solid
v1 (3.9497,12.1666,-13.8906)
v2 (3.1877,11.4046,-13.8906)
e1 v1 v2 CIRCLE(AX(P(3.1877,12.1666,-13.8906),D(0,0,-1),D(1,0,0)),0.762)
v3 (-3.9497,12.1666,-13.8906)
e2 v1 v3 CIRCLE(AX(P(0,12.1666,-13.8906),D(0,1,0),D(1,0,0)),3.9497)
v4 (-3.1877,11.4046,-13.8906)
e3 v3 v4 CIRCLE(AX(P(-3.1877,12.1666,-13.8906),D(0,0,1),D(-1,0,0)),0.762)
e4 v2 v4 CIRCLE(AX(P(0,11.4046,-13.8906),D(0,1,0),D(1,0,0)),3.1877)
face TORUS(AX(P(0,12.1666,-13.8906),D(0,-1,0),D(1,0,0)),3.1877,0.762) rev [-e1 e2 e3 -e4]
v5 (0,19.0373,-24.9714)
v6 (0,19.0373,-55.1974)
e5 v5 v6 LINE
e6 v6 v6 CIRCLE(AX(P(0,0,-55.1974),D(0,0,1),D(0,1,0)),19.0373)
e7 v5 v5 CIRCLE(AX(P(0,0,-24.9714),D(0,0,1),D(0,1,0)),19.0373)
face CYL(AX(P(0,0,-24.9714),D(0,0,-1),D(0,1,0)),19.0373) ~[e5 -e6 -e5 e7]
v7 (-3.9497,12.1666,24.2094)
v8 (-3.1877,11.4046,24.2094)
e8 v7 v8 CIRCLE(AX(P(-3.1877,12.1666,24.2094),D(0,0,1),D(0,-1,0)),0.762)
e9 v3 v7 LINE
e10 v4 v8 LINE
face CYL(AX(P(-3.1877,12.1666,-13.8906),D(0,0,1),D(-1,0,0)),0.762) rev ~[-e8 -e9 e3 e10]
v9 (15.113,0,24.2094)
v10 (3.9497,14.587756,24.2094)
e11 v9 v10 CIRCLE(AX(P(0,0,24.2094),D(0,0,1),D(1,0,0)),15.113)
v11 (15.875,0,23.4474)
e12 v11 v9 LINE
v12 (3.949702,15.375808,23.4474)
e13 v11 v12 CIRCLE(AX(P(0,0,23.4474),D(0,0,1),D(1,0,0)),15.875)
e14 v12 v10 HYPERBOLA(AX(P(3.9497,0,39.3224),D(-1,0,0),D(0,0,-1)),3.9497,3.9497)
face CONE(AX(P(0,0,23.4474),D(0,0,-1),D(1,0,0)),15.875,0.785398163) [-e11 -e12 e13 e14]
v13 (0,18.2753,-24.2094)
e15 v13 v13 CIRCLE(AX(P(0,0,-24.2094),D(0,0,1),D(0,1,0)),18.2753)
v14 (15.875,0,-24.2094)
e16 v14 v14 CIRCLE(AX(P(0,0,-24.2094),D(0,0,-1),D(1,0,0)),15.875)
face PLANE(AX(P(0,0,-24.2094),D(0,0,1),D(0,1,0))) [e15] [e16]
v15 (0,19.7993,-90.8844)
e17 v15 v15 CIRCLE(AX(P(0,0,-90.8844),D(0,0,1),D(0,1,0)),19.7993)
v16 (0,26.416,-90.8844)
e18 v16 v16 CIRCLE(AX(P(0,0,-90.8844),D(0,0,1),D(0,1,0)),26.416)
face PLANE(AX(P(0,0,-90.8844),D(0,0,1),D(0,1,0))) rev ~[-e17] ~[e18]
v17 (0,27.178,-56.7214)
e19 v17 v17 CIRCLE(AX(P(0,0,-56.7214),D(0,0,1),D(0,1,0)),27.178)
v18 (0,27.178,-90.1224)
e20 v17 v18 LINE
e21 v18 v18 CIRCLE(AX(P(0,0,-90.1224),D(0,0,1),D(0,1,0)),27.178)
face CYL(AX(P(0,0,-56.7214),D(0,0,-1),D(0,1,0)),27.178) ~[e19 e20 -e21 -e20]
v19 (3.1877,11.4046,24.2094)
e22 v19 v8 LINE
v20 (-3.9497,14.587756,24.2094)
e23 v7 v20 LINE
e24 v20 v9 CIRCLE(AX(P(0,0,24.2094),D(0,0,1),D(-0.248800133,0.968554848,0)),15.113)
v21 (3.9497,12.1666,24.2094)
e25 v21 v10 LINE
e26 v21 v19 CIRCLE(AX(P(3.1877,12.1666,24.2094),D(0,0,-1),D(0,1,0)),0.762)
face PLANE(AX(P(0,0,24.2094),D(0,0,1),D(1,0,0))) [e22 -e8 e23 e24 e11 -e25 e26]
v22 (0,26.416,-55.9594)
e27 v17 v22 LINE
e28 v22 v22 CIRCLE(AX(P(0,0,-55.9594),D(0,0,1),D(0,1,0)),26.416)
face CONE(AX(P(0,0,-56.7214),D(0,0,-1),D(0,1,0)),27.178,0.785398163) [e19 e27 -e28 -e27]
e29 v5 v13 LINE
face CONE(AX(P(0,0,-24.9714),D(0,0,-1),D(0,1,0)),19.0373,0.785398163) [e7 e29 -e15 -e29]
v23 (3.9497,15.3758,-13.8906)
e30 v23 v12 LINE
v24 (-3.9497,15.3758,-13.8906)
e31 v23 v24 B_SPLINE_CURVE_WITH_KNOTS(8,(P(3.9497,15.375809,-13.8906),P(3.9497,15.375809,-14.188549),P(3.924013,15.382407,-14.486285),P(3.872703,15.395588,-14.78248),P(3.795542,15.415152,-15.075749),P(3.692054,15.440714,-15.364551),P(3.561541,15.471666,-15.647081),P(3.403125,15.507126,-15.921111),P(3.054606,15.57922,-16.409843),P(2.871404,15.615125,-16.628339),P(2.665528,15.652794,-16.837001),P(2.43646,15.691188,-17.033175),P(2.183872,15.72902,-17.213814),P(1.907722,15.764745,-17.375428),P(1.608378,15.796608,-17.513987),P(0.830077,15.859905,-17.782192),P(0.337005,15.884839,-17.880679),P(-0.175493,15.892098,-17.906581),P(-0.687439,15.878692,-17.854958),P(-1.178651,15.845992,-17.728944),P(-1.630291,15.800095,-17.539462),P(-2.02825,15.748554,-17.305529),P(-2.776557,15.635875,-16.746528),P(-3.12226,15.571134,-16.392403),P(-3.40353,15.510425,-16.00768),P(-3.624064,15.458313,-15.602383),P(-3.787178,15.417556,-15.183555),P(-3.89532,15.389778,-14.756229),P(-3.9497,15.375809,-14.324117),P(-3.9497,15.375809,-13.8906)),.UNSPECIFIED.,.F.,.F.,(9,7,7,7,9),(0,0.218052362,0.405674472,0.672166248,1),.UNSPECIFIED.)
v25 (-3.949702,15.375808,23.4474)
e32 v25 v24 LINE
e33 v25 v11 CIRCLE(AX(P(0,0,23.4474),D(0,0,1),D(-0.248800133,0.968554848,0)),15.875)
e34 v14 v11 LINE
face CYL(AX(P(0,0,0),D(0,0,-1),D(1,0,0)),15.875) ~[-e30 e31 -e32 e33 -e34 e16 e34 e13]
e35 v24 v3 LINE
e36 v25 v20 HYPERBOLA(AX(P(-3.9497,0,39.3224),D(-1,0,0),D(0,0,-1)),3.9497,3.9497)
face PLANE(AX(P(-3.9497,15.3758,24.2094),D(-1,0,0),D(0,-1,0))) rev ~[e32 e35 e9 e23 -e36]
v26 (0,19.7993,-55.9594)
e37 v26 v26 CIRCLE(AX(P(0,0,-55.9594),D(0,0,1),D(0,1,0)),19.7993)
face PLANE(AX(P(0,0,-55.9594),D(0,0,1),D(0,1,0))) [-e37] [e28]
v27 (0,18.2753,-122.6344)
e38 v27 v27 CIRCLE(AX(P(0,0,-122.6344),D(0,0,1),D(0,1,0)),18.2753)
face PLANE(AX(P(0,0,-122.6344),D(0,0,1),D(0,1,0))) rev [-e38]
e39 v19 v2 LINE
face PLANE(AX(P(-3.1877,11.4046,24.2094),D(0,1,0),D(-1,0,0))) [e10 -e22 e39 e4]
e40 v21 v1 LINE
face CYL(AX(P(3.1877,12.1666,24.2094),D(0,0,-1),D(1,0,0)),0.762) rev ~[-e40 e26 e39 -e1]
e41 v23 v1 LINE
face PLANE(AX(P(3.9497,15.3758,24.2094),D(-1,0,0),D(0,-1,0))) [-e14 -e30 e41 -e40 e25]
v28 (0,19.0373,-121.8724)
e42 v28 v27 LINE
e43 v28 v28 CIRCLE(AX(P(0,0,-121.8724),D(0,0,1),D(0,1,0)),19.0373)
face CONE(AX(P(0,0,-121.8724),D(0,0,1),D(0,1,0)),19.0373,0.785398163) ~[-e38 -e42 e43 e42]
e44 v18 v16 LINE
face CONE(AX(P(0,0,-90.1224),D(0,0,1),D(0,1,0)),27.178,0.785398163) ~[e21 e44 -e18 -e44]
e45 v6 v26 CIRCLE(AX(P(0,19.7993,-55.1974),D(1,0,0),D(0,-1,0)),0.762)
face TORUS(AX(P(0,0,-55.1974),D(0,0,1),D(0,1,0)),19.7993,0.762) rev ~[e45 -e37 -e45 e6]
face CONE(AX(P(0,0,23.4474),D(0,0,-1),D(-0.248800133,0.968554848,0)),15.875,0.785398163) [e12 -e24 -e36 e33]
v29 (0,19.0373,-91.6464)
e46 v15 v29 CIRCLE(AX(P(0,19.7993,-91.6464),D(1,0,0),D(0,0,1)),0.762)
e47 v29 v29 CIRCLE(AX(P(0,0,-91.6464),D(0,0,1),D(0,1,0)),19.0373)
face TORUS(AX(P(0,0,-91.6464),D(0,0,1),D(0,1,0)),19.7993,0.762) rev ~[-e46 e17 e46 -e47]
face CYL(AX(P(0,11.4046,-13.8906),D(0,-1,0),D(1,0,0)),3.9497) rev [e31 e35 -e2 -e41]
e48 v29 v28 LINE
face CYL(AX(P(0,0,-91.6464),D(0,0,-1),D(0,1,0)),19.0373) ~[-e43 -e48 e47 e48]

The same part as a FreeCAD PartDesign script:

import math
import FreeCAD as App
import Part
import Sketcher
from FreeCAD import Vector
Q = App.Units.Quantity


def edges_at(feature, points):
    """Names of the edges that pass closest to the given points."""
    edges = feature.Shape.Edges
    near = lambda p: min(range(len(edges)), key=lambda i: edges[i].distToShape(Part.Vertex(*p))[0])
    return sorted({f"Edge{near(p) + 1}" for p in points})

doc = App.newDocument("Part")
body = doc.addObject("PartDesign::Body", "Body")

sketch1 = body.newObject("Sketcher::SketchObject", "Sketch")
sketch1.AttachmentSupport = (doc.getObject("XY_Plane"), [""])
sketch1.MapMode = "FlatFace"
sketch1.addGeometry(Part.Circle(Vector(0, 0, 0), Vector(0, 0, 1), 16), False)
sketch1.addConstraint([
    Sketcher.Constraint("Coincident", 0, 3, -1, 1),
    Sketcher.Constraint("Diameter", 0, Q("1.25 in")),
])
pad1 = body.newObject("PartDesign::Pad", "Pad")
pad1.Profile = sketch1
pad1.Length = Q("1.906252 in")
pad1.Midplane = True

sketch2 = body.newObject("Sketcher::SketchObject", "Sketch001")
sketch2.AttachmentSupport = (doc.getObject("XY_Plane"), [""])
sketch2.MapMode = "FlatFace"
sketch2.AttachmentOffset = App.Placement(Vector(0, 0, 0.953126 * 25.4), App.Rotation())
sketch2.addGeometry([
    Part.LineSegment(Vector(3.9, 11.4, 0), Vector(3.9, 15.4, 0)),
    Part.ArcOfCircle(Part.Circle(Vector(0, 0, 0), Vector(0, 0, 1), 15.9), math.radians(75.59), math.radians(90)),
    Part.ArcOfCircle(Part.Circle(Vector(0, 0, 0), Vector(0, 0, 1), 15.9), math.radians(90), math.radians(104.41)),
    Part.LineSegment(Vector(-3.9, 15.4, 0), Vector(-3.9, 11.4, 0)),
    Part.LineSegment(Vector(-3.9, 11.4, 0), Vector(3.9, 11.4, 0)),
], False)
sketch2.addConstraint([
    Sketcher.Constraint("Coincident", 0, 2, 1, 1),
    Sketcher.Constraint("Tangent", 1, 2, 2, 1),
    Sketcher.Constraint("Coincident", 2, 2, 3, 1),
    Sketcher.Constraint("Coincident", 3, 2, 4, 1),
    Sketcher.Constraint("Coincident", 4, 2, 0, 1),
    Sketcher.Constraint("Vertical", 0),
    Sketcher.Constraint("Vertical", 3),
    Sketcher.Constraint("Horizontal", 4),
    Sketcher.Constraint("Coincident", 1, 3, -1, 1),
    Sketcher.Constraint("Equal", 1, 2),
    Sketcher.Constraint("PointOnObject", 1, 2, -2),
    Sketcher.Constraint("Horizontal", 0, 2, 2, 2),
    Sketcher.Constraint("Radius", 1, Q("0.625 in")),
    Sketcher.Constraint("DistanceX", -1, 1, 0, 2, Q("0.1555 in")),
    Sketcher.Constraint("DistanceY", -1, 1, 3, 2, Q("0.449 in")),
])
pocket1 = body.newObject("PartDesign::Pocket", "Pocket")
pocket1.Profile = sketch2
pocket1.Length = Q("1.5 in")

sketch3 = body.newObject("Sketcher::SketchObject", "Sketch002")
sketch3.AttachmentSupport = (doc.getObject("XZ_Plane"), [""])
sketch3.MapMode = "FlatFace"
sketch3.AttachmentOffset = App.Placement(Vector(0, 0, -0.449 * 25.4), App.Rotation())
sketch3.addGeometry([
    Part.LineSegment(Vector(-3.9, -13.9, 0), Vector(3.9, -13.9, 0)),
    Part.ArcOfCircle(Part.Circle(Vector(0, -13.9, 0), Vector(0, 0, 1), 3.9), math.radians(180), math.radians(360)),
], False)
sketch3.addConstraint([
    Sketcher.Constraint("Coincident", 0, 1, 1, 1),
    Sketcher.Constraint("Coincident", 1, 2, 0, 2),
    Sketcher.Constraint("Horizontal", 0),
    Sketcher.Constraint("PointOnObject", 1, 3, -2),
    Sketcher.Constraint("Horizontal", 1, 3, 0, 1),
    Sketcher.Constraint("Radius", 1, Q("0.1555 in")),
    Sketcher.Constraint("DistanceY", 1, 3, -1, 1, Q("0.546874 in")),
])
pocket2 = body.newObject("PartDesign::Pocket", "Pocket001")
pocket2.Profile = sketch3
pocket2.Type = "UpToFirst"
doc.recompute()

fillet = body.newObject("PartDesign::Fillet", "Fillet")
fillet.Base = (pocket2, edges_at(pocket2, [(0, 11.405, -17.84), (3.95, 11.405, 5.159), (-3.95, 11.405, 5.159)]))
fillet.Radius = Q("0.03 in")

sketch4 = body.newObject("Sketcher::SketchObject", "Sketch003")
sketch4.AttachmentSupport = (doc.getObject("XY_Plane"), [""])
sketch4.MapMode = "FlatFace"
sketch4.AttachmentOffset = App.Placement(Vector(0, 0, -0.953126 * 25.4), App.Rotation())
sketch4.addGeometry(Part.Circle(Vector(0, 0, 0), Vector(0, 0, 1), 16), False)
sketch4.addConstraint([
    Sketcher.Constraint("Coincident", 0, 3, -1, 1),
    Sketcher.Constraint("Diameter", 0, Q("1.25 in")),
])
pad2 = body.newObject("PartDesign::Pad", "Pad001")
pad2.Profile = sketch4
pad2.Length = Q("3.875 in")
pad2.Reversed = True

sketch5 = body.newObject("Sketcher::SketchObject", "Sketch004")
sketch5.AttachmentSupport = (doc.getObject("YZ_Plane"), [""])
sketch5.MapMode = "FlatFace"
sketch5.addGeometry([
    Part.LineSegment(Vector(27.2, -90.1, 0), Vector(27.2, -56.7, 0)),
    Part.LineSegment(Vector(27.2, -56.7, 0), Vector(26.4, -56, 0)),
    Part.LineSegment(Vector(26.4, -56, 0), Vector(19.8, -56, 0)),
    Part.ArcOfCircle(Part.Circle(Vector(19.8, -55.2, 0), Vector(0, 0, 1), 0.8), math.radians(180), math.radians(270)),
    Part.LineSegment(Vector(19, -55.2, 0), Vector(19, -25, 0)),
    Part.LineSegment(Vector(19, -25, 0), Vector(18.3, -24.2, 0)),
    Part.LineSegment(Vector(18.3, -24.2, 0), Vector(15.9, -24.2, 0)),
    Part.LineSegment(Vector(15.9, -24.2, 0), Vector(15.9, -122.6, 0)),
    Part.LineSegment(Vector(15.9, -122.6, 0), Vector(18.3, -122.6, 0)),
    Part.LineSegment(Vector(18.3, -122.6, 0), Vector(19, -121.9, 0)),
    Part.LineSegment(Vector(19, -121.9, 0), Vector(19, -91.6, 0)),
    Part.ArcOfCircle(Part.Circle(Vector(19.8, -91.6, 0), Vector(0, 0, 1), 0.8), math.radians(90), math.radians(180)),
    Part.LineSegment(Vector(19.8, -90.9, 0), Vector(26.4, -90.9, 0)),
    Part.LineSegment(Vector(26.4, -90.9, 0), Vector(27.2, -90.1, 0)),
], False)
sketch5.addConstraint([
    Sketcher.Constraint("Coincident", 0, 2, 1, 1),
    Sketcher.Constraint("Coincident", 1, 2, 2, 1),
    Sketcher.Constraint("Tangent", 2, 2, 3, 2),
    Sketcher.Constraint("Tangent", 3, 1, 4, 1),
    Sketcher.Constraint("Coincident", 4, 2, 5, 1),
    Sketcher.Constraint("Coincident", 5, 2, 6, 1),
    Sketcher.Constraint("Coincident", 6, 2, 7, 1),
    Sketcher.Constraint("Coincident", 7, 2, 8, 1),
    Sketcher.Constraint("Coincident", 8, 2, 9, 1),
    Sketcher.Constraint("Coincident", 9, 2, 10, 1),
    Sketcher.Constraint("Tangent", 10, 2, 11, 2),
    Sketcher.Constraint("Tangent", 11, 1, 12, 1),
    Sketcher.Constraint("Coincident", 12, 2, 13, 1),
    Sketcher.Constraint("Coincident", 13, 2, 0, 1),
    Sketcher.Constraint("Vertical", 0),
    Sketcher.Constraint("Horizontal", 2),
    Sketcher.Constraint("Vertical", 4),
    Sketcher.Constraint("Horizontal", 6),
    Sketcher.Constraint("Vertical", 7),
    Sketcher.Constraint("Horizontal", 8),
    Sketcher.Constraint("Vertical", 10),
    Sketcher.Constraint("Horizontal", 12),
    Sketcher.Constraint("Equal", 3, 11),
    Sketcher.Constraint("Parallel", 1, 5),
    Sketcher.Constraint("Perpendicular", 5, 9),
    Sketcher.Constraint("Parallel", 9, 13),
    Sketcher.Constraint("Vertical", 3, 3, 11, 3),
    Sketcher.Constraint("Vertical", 5, 2, 8, 2),
    Sketcher.Constraint("Vertical", 1, 2, 12, 2),
    Sketcher.Constraint("Equal", 4, 10),
    Sketcher.Constraint("Equal", 1, 5),
    Sketcher.Constraint("Equal", 5, 9),
    Sketcher.Constraint("Radius", 3, Q("0.03 in")),
    Sketcher.Constraint("DistanceY", 7, 2, 7, 1, Q("3.875 in")),
    Sketcher.Constraint("DistanceX", -1, 1, 0, 2, Q("1.07 in")),
    Sketcher.Constraint("DistanceX", 1, 2, 0, 2, Q("0.03 in")),
    Sketcher.Constraint("DistanceY", 0, 2, 4, 2, Q("1.25 in")),
    Sketcher.Constraint("DistanceX", -1, 1, 3, 1, Q("0.7495 in")),
    Sketcher.Constraint("DistanceX", 6, 2, 6, 1, Q("0.0945 in")),
    Sketcher.Constraint("DistanceY", 1, 2, -1, 1, Q("2.203126 in")),
])
revolution = body.newObject("PartDesign::Revolution", "Revolution")
revolution.Profile = sketch5
revolution.ReferenceAxis = (sketch5, ["V_Axis"])
revolution.Angle = 360
doc.recompute()

chamfer = body.newObject("PartDesign::Chamfer", "Chamfer")
chamfer.Base = (revolution, edges_at(revolution, [(-9.729, -12.544, 24.209), (12.544, 9.729, 24.209)]))
chamfer.Size = Q("0.03 in")

doc.recompute()
